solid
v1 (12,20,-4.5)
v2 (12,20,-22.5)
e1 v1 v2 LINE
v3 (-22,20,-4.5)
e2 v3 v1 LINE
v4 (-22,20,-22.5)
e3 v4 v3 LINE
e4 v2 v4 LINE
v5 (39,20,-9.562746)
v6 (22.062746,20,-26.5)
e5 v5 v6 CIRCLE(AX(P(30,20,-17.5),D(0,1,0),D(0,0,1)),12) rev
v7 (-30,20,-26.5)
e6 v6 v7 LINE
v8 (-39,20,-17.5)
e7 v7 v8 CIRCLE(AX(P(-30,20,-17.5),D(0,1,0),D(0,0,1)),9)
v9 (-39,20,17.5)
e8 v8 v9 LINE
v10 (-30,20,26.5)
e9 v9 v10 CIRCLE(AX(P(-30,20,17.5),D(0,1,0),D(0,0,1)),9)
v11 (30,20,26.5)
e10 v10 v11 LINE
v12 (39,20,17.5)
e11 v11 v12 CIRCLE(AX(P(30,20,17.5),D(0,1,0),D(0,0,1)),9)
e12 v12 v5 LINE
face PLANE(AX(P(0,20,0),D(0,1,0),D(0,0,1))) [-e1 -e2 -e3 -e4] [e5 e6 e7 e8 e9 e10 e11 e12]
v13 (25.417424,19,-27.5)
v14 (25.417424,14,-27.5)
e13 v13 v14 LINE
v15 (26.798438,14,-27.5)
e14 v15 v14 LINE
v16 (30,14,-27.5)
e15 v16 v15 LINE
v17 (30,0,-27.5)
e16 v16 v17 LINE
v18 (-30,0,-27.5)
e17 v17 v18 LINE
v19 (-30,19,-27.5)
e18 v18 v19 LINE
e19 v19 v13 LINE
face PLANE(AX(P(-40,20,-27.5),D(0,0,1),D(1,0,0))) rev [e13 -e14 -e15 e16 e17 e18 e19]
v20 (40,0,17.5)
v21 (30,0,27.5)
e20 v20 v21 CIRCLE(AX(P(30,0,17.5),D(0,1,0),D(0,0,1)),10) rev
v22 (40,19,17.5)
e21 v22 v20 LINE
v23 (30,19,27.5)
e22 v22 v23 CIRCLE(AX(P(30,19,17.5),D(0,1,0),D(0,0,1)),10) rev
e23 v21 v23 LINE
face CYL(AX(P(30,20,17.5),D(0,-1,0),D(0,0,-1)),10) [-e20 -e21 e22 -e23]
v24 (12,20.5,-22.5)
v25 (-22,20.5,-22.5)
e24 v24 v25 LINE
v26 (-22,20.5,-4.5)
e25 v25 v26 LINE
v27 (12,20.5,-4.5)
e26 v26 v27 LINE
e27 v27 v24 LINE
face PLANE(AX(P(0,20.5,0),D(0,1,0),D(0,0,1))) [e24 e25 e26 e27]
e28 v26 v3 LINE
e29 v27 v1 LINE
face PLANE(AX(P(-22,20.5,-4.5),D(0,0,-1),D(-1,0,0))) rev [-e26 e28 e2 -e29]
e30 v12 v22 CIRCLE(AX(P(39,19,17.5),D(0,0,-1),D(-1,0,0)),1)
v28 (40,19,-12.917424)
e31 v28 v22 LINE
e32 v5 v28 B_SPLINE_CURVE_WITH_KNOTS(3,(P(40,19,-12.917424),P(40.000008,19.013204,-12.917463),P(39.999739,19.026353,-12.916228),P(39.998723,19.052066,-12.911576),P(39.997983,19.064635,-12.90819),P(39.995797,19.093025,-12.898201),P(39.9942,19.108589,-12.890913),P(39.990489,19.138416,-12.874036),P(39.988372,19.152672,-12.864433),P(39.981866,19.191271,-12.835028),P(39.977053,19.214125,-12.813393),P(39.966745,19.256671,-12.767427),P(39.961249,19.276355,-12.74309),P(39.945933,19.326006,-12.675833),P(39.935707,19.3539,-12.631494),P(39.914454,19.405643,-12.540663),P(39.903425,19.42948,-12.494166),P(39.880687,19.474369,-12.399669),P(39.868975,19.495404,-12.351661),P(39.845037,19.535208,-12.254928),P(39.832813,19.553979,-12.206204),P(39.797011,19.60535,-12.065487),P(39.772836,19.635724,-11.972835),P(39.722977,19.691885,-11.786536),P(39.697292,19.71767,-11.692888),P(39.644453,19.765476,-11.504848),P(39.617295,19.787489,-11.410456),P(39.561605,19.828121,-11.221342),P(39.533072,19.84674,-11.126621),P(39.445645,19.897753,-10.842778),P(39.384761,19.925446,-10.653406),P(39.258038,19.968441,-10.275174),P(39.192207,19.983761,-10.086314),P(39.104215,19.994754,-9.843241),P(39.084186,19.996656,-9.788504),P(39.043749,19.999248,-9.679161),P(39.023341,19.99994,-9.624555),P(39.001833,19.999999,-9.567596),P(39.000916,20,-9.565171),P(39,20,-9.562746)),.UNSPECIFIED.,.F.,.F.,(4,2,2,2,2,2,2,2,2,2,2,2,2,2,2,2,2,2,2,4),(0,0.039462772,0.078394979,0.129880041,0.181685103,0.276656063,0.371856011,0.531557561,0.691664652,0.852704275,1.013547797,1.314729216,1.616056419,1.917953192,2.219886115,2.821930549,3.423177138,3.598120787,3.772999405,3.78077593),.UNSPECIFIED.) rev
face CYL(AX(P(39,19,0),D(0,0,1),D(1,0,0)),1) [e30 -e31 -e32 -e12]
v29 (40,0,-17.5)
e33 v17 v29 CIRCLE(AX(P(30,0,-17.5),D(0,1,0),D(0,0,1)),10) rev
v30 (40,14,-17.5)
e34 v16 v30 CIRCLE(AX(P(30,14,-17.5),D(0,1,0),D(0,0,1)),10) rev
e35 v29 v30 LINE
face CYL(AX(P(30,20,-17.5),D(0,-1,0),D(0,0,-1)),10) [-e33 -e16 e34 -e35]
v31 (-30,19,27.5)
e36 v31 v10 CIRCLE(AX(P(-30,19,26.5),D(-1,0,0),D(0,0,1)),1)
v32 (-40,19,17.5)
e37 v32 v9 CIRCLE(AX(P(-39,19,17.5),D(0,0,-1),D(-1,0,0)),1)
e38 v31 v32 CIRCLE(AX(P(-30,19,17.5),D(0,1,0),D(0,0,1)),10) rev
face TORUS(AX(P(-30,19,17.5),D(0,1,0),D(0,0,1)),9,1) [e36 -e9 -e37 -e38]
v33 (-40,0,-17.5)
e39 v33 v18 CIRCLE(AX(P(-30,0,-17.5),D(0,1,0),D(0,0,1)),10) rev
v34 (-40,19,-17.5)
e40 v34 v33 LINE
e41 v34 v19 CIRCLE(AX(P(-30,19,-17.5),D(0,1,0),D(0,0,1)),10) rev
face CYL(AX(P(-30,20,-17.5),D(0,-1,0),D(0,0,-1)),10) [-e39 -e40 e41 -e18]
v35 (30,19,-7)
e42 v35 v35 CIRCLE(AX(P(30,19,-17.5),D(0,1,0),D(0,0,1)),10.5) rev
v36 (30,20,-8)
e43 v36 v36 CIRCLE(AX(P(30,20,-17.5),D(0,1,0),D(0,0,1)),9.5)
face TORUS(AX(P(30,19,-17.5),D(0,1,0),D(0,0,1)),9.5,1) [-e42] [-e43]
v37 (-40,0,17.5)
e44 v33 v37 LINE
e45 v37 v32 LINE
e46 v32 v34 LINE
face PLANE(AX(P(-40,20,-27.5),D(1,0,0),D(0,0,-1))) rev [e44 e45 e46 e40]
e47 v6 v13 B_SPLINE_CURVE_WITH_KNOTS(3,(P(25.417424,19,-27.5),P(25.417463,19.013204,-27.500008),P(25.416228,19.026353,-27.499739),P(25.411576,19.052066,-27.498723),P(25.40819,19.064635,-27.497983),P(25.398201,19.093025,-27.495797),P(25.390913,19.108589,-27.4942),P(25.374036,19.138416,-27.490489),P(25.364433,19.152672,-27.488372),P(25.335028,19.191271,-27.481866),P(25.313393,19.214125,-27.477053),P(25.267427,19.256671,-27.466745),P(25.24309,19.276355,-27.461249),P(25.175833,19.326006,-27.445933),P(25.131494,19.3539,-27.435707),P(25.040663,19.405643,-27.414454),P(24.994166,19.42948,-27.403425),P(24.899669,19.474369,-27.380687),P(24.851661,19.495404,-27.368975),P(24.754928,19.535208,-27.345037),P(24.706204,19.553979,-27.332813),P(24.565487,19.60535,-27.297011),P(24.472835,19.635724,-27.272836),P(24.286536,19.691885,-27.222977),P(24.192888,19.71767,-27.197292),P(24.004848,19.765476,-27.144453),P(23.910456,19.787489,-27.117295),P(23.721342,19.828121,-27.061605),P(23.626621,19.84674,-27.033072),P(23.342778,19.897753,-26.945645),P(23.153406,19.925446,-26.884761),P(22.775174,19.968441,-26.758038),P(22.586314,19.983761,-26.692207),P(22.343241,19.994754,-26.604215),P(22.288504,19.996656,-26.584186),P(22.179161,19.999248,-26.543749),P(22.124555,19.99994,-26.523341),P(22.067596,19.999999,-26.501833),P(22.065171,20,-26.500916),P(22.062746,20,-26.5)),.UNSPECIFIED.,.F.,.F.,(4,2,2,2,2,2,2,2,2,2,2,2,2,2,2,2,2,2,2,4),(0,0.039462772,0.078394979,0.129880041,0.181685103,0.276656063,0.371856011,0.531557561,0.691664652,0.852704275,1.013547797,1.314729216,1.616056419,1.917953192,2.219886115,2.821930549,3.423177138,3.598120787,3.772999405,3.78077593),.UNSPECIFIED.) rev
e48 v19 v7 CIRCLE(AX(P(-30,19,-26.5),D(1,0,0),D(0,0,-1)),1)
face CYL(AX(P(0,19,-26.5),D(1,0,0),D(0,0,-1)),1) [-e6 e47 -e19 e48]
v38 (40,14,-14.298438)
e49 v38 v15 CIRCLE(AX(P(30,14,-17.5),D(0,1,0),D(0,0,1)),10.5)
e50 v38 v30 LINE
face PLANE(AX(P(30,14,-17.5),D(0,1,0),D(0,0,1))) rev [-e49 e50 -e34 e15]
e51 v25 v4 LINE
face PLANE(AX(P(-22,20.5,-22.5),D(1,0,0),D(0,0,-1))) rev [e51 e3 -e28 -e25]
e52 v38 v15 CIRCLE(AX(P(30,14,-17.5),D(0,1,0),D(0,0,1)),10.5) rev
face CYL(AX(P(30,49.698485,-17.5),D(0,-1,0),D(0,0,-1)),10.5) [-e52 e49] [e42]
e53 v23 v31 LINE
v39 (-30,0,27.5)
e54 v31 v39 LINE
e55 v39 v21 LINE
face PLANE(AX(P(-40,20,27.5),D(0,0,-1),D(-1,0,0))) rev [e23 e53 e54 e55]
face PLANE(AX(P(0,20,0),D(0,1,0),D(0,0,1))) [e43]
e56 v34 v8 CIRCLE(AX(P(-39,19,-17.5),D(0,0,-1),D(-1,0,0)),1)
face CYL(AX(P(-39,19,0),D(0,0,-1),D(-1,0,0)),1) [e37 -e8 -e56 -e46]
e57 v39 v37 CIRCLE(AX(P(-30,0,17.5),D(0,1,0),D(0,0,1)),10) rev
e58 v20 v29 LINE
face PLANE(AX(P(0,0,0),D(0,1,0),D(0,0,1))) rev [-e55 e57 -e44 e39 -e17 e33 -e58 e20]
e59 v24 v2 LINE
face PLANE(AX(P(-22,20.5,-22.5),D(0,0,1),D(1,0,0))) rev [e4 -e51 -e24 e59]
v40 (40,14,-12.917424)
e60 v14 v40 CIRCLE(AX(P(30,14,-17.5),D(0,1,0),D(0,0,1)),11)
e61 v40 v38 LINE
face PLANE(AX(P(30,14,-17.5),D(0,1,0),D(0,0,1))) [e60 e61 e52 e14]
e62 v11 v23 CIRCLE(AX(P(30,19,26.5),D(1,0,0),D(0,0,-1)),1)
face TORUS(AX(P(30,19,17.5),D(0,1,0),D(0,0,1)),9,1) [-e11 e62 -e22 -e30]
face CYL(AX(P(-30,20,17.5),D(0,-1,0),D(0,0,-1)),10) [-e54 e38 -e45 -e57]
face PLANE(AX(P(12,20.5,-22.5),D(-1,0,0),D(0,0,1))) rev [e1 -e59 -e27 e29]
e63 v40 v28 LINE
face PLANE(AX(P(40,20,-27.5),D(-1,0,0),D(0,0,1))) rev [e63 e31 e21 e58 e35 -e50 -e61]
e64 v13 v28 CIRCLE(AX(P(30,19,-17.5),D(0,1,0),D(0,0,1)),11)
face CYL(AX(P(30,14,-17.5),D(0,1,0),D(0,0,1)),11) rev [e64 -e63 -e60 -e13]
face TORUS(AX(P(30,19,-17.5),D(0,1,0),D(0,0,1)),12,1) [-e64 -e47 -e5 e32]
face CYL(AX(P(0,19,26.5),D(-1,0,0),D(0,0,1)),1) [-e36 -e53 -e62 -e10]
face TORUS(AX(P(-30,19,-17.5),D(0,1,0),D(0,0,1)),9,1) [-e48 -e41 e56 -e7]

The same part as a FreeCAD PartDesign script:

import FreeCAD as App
import Part
import Sketcher

V = App.Vector


def edges_at(feature, points):
    """Names of the edges that pass closest to the given points."""
    edges = feature.Shape.Edges
    near = lambda p: min(range(len(edges)), key=lambda i: edges[i].distToShape(Part.Vertex(*p))[0])
    return sorted({f"Edge{near(p) + 1}" for p in points})


def add_polygon(sketch, points):
    """Adds a closed chain of lines whose ends are joined by coincident constraints."""
    first, n = sketch.GeometryCount, len(points)
    for a, b in zip(points, points[1:] + points[:1]):
        sketch.addGeometry(Part.LineSegment(App.Vector(*a, 0), App.Vector(*b, 0)), False)
    for i in range(n):
        sketch.addConstraint(Sketcher.Constraint("Coincident", first + i, 2, first + (i + 1) % n, 1))

doc = App.newDocument("Part")
body = doc.addObject("PartDesign::Body", "Body")

sketch1 = body.newObject("Sketcher::SketchObject", "Sketch")
sketch1.AttachmentSupport = (doc.getObject("XZ_Plane"), [""])
sketch1.MapMode = "FlatFace"
add_polygon(sketch1, [(-40, -28), (-40, 28), (40, 28), (40, -28)])
sketch1.addConstraint(Sketcher.Constraint("Vertical", 0))
sketch1.addConstraint(Sketcher.Constraint("Horizontal", 1))
sketch1.addConstraint(Sketcher.Constraint("Vertical", 2))
sketch1.addConstraint(Sketcher.Constraint("Horizontal", 3))
sketch1.addConstraint(Sketcher.Constraint("Symmetric", 0, 2, 2, 2, -1, 1))
sketch1.addConstraint(Sketcher.Constraint("DistanceX", 1, 1, 1, 2, 80.0))
sketch1.addConstraint(Sketcher.Constraint("DistanceY", 0, 1, 0, 2, 55.0))
pad1 = body.newObject("PartDesign::Pad", "Pad")
pad1.Profile = sketch1
pad1.Length = 20
pad1.Reversed = True
doc.recompute()

fillet = body.newObject("PartDesign::Fillet", "Fillet")
fillet.Base = (pad1, edges_at(pad1, [
    (40, 10, 27.5),
    (-40, 10, 27.5),
    (-40, 10, -27.5),
    (40, 10, -27.5),
]))
fillet.Radius = 10

sketch2 = body.newObject("Sketcher::SketchObject", "Sketch001")
sketch2.AttachmentSupport = (doc.getObject("XZ_Plane"), [""])
sketch2.MapMode = "FlatFace"
sketch2.AttachmentOffset = App.Placement(V(0, 0, -20), App.Rotation())
sketch2.addGeometry(Part.Circle(V(30, -18, 0), V(0, 0, 1), 11), False)
sketch2.addConstraint(Sketcher.Constraint("Diameter", 0, 22.0))
sketch2.addConstraint(Sketcher.Constraint("DistanceX", -1, 1, 0, 3, 30.0))
sketch2.addConstraint(Sketcher.Constraint("DistanceY", 0, 3, -1, 1, 17.5))
pocket1 = body.newObject("PartDesign::Pocket", "Pocket")
pocket1.Profile = sketch2
pocket1.Length = 6
pocket1.Reversed = True

sketch3 = body.newObject("Sketcher::SketchObject", "Sketch002")
sketch3.AttachmentSupport = (doc.getObject("XZ_Plane"), [""])
sketch3.MapMode = "FlatFace"
sketch3.AttachmentOffset = App.Placement(V(0, 0, -20), App.Rotation())
add_polygon(sketch3, [(-22, -22), (-22, -4), (12, -4), (12, -22)])
sketch3.addConstraint(Sketcher.Constraint("Vertical", 0))
sketch3.addConstraint(Sketcher.Constraint("Horizontal", 1))
sketch3.addConstraint(Sketcher.Constraint("Vertical", 2))
sketch3.addConstraint(Sketcher.Constraint("Horizontal", 3))
sketch3.addConstraint(Sketcher.Constraint("DistanceX", 1, 1, 1, 2, 34.0))
sketch3.addConstraint(Sketcher.Constraint("DistanceY", 0, 1, 0, 2, 18.0))
sketch3.addConstraint(Sketcher.Constraint("DistanceX", 0, 2, -1, 1, 22.0))
sketch3.addConstraint(Sketcher.Constraint("DistanceY", 0, 2, -1, 1, 4.5))
pocket2 = body.newObject("PartDesign::Pocket", "Pocket001")
pocket2.Profile = sketch3
pocket2.Length = 2
pocket2.Reversed = True

sketch4 = body.newObject("Sketcher::SketchObject", "Sketch003")
sketch4.AttachmentSupport = (doc.getObject("XZ_Plane"), [""])
sketch4.MapMode = "FlatFace"
sketch4.AttachmentOffset = App.Placement(V(0, 0, -14), App.Rotation())
sketch4.addGeometry(Part.Circle(V(30, -18, 0), V(0, 0, 1), 10), False)
sketch4.addConstraint(Sketcher.Constraint("Diameter", 0, 21.0))
sketch4.addConstraint(Sketcher.Constraint("DistanceX", -1, 1, 0, 3, 30.0))
sketch4.addConstraint(Sketcher.Constraint("DistanceY", 0, 3, -1, 1, 17.5))
pad2 = body.newObject("PartDesign::Pad", "Pad001")
pad2.Profile = sketch4
pad2.Length = 6
pad2.Reversed = True
doc.recompute()

fillet2 = body.newObject("PartDesign::Fillet", "Fillet001")
fillet2.Base = (pad2, edges_at(pad2, [
    (-40, 20, 0),
    (40, 20, 2.291),
    (0, 20, 27.5),
    (-37.071, 20, 24.571),
    (37.071, 20, 24.571),
    (-37.071, 20, -24.571),
    (-2.291, 20, -27.5),
    (22.222, 20, -9.722),
]))
fillet2.Radius = 1
doc.recompute()

fillet3 = body.newObject("PartDesign::Fillet", "Fillet002")
fillet3.Base = (fillet2, edges_at(fillet2, [(19.5, 20, -17.5)]))
fillet3.Radius = 1

sketch5 = body.newObject("Sketcher::SketchObject", "Sketch004")
sketch5.AttachmentSupport = (doc.getObject("XZ_Plane"), [""])
sketch5.MapMode = "FlatFace"
sketch5.AttachmentOffset = App.Placement(V(0, 0, -18), App.Rotation())
add_polygon(sketch5, [(-22, -22), (-22, -4), (12, -4), (12, -22)])
sketch5.addConstraint(Sketcher.Constraint("Vertical", 0))
sketch5.addConstraint(Sketcher.Constraint("Horizontal", 1))
sketch5.addConstraint(Sketcher.Constraint("Vertical", 2))
sketch5.addConstraint(Sketcher.Constraint("Horizontal", 3))
sketch5.addConstraint(Sketcher.Constraint("DistanceX", 1, 1, 1, 2, 34.0))
sketch5.addConstraint(Sketcher.Constraint("DistanceY", 0, 1, 0, 2, 18.0))
sketch5.addConstraint(Sketcher.Constraint("DistanceX", 0, 2, -1, 1, 22.0))
sketch5.addConstraint(Sketcher.Constraint("DistanceY", 0, 2, -1, 1, 4.5))
pad3 = body.newObject("PartDesign::Pad", "Pad002")
pad3.Profile = sketch5
pad3.Length = 2.5
pad3.Reversed = True

doc.recompute()
